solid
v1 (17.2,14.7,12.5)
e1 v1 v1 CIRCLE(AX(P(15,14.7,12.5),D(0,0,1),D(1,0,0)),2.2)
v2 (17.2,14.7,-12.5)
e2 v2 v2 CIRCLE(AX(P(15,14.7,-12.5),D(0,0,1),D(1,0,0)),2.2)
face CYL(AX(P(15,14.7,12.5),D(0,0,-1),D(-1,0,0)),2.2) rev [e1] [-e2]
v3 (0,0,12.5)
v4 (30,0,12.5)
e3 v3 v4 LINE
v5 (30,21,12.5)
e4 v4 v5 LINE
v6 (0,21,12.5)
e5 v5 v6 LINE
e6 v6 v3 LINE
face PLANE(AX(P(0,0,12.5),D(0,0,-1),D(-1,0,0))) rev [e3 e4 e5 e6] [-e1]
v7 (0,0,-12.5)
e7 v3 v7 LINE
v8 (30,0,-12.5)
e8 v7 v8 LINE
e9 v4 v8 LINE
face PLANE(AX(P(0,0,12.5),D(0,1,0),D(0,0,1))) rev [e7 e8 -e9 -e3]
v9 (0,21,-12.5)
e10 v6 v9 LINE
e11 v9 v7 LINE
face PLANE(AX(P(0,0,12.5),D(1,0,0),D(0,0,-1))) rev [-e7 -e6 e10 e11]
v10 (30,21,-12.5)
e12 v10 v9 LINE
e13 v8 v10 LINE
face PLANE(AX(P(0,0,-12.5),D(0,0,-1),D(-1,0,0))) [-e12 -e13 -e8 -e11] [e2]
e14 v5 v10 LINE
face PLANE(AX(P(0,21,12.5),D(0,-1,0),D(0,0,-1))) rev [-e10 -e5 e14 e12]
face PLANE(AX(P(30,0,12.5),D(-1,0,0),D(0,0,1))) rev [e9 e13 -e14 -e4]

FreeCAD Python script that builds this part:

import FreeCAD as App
import Part
import Sketcher

V = App.Vector
Q = App.Units.Quantity


def add_polygon(sketch, points):
    """Adds a closed chain of lines whose ends are joined by coincident constraints."""
    first, n = sketch.GeometryCount, len(points)
    for a, b in zip(points, points[1:] + points[:1]):
        sketch.addGeometry(Part.LineSegment(App.Vector(*a, 0), App.Vector(*b, 0)), False)
    for i in range(n):
        sketch.addConstraint(Sketcher.Constraint("Coincident", first + i, 2, first + (i + 1) % n, 1))

doc = App.newDocument("Part")
body = doc.addObject("PartDesign::Body", "Body")

# Sketch on XY plane
sketch1 = body.newObject("Sketcher::SketchObject", "Sketch")
sketch1.AttachmentSupport = (doc.getObject("XY_Plane"), [""])
sketch1.MapMode = "FlatFace"
add_polygon(sketch1, [(0, 21), (0, 0), (30, 0), (30, 21)])  # lines 0-3
sketch1.addGeometry(Part.Circle(V(15, 14.7, 0), V(0, 0, 1), 2.2), False)  # 4
sketch1.addConstraint([
    Sketcher.Constraint("Vertical", 0),
    Sketcher.Constraint("Horizontal", 1),
    Sketcher.Constraint("Vertical", 2),
    Sketcher.Constraint("Horizontal", 3),
    Sketcher.Constraint("Coincident", 0, 2, -1, 1),
    Sketcher.Constraint("Diameter", 4, Q("4.4 mm")),
    Sketcher.Constraint("DistanceX", 1, 1, 1, 2, Q("30 mm")),
    Sketcher.Constraint("DistanceY", 0, 2, 0, 1, Q("21 mm")),
    Sketcher.Constraint("DistanceX", -1, 1, 4, 3, Q("15 mm")),
    Sketcher.Constraint("DistanceY", -1, 1, 4, 3, Q("14.7 mm")),
])
pad1 = body.newObject("PartDesign::Pad", "Pad")
pad1.Profile = sketch1
pad1.Length = 25
pad1.Midplane = True

doc.recompute()
